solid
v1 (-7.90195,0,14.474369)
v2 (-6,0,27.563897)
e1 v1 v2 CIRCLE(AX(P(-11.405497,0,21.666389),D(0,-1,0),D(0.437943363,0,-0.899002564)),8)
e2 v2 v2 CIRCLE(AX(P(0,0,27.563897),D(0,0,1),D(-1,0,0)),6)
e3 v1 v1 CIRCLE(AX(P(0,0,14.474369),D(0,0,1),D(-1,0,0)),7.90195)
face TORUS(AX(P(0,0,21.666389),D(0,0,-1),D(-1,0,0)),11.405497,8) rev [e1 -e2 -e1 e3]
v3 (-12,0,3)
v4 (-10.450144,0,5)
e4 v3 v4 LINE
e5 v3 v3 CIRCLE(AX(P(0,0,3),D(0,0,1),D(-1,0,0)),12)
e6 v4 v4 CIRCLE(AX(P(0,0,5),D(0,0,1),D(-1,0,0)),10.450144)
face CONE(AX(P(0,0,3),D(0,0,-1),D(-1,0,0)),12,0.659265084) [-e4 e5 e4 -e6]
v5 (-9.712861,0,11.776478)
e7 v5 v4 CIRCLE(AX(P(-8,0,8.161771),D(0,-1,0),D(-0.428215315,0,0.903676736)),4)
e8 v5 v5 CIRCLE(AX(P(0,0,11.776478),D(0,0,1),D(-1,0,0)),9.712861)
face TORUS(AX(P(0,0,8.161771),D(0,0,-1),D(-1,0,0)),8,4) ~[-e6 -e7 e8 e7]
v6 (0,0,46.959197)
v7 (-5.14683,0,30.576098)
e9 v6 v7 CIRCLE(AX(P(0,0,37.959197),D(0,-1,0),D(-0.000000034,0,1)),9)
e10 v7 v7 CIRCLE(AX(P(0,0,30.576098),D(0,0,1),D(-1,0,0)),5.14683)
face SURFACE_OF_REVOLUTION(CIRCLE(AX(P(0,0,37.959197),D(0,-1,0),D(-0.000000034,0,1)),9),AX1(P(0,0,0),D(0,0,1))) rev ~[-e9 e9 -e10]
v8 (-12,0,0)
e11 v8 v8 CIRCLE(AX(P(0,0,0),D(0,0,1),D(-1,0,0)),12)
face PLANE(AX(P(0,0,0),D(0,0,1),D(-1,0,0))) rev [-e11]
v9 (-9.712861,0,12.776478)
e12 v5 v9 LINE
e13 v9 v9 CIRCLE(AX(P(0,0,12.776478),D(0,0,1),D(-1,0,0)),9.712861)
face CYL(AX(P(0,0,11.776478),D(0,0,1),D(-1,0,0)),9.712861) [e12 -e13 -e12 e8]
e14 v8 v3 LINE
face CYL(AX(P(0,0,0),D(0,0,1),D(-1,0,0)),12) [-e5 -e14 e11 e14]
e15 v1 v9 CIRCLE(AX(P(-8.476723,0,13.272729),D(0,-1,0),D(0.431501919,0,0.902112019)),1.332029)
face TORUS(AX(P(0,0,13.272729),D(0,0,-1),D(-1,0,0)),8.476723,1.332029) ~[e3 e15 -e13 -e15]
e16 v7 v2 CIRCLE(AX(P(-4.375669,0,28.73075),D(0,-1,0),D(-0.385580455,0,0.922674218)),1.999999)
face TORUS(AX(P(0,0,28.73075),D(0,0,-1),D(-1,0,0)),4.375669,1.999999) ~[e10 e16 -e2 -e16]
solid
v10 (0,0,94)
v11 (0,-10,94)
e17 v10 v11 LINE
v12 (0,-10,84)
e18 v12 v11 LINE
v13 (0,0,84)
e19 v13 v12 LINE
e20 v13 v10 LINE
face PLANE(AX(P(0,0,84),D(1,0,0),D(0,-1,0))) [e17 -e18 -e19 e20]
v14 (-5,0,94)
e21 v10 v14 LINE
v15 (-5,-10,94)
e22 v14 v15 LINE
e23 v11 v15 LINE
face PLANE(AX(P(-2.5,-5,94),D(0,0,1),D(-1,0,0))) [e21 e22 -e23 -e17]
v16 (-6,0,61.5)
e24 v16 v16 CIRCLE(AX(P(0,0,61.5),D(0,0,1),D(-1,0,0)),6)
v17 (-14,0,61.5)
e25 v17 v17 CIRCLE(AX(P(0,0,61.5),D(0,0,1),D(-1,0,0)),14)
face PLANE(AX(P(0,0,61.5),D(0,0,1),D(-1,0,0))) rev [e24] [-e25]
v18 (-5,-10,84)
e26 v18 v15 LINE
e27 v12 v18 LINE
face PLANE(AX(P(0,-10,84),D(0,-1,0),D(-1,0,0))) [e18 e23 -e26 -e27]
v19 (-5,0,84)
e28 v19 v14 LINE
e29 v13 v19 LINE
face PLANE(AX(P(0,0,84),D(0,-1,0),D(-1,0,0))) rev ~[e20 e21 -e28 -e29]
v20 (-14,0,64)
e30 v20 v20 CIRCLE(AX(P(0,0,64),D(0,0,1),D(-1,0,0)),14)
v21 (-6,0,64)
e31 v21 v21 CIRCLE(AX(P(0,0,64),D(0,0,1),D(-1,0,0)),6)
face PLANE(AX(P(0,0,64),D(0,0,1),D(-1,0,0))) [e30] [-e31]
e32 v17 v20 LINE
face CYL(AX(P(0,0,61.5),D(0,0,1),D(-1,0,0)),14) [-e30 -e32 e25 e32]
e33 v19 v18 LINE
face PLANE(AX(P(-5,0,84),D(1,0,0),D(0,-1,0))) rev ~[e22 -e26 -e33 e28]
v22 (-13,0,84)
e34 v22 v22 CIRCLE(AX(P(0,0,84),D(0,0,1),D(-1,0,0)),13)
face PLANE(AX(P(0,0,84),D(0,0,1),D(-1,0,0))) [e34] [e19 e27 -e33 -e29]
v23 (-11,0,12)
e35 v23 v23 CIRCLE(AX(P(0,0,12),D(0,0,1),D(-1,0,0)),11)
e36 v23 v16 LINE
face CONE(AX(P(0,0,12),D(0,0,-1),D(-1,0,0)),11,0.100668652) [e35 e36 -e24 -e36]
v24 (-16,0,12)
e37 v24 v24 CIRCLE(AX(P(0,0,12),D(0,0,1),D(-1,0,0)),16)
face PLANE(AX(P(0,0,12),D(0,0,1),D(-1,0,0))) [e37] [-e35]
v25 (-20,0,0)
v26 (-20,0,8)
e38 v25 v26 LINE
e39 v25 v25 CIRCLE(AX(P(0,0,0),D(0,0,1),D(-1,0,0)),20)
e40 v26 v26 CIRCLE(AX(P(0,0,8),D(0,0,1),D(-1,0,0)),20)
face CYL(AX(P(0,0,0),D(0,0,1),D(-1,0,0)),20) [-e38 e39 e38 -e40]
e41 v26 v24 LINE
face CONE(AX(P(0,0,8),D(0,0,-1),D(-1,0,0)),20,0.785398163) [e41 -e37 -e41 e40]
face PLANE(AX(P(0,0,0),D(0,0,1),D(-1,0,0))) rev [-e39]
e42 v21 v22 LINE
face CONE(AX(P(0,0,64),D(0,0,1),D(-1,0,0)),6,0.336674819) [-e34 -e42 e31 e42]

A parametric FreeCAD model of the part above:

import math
import FreeCAD as App
import Part
import Sketcher
from FreeCAD import Vector
Q = App.Units.Quantity

doc = App.newDocument("Part")
body = doc.addObject("PartDesign::Body", "Body")

sketch1 = doc.addObject("Sketcher::SketchObject", "Sketch")
body.addObject(sketch1)
sketch1.AttachmentSupport = (doc.XZ_Plane, [""])
sketch1.MapMode = "FlatFace"
sketch1.addGeometry(Part.LineSegment(Vector(-12, 0, 0), Vector(0, 0, 0)), False)
sketch1.addGeometry(Part.LineSegment(Vector(0, 0, 0), Vector(0, 46.959197, 0)), False)
sketch1.addGeometry(Part.ArcOfCircle(Part.Circle(Vector(0, 37.959197, 0), Vector(0, 0, 1), 9), math.radians(90.000002), math.radians(235.11927)), False)
sketch1.addGeometry(Part.ArcOfCircle(Part.Circle(Vector(-4.375669, 28.73075, 0), Vector(0, 0, 1), 1.999999), math.radians(112.67978), math.radians(215.691937)), False)
sketch1.addGeometry(Part.ArcOfCircle(Part.Circle(Vector(-11.405497, 21.666389, 0), Vector(0, 0, 1), 8), math.radians(-64.027267), math.radians(47.492468)), False)
sketch1.addGeometry(Part.ArcOfCircle(Part.Circle(Vector(-8.476723, 13.272729, 0), Vector(0, 0, 1), 1.332029), math.radians(64.437087), math.radians(201.873146)), False)
sketch1.addGeometry(Part.LineSegment(Vector(-9.712861, 12.776478, 0), Vector(-9.712861, 11.776478, 0)), False)
sketch1.addGeometry(Part.ArcOfCircle(Part.Circle(Vector(-8, 8.161771, 0), Vector(0, 0, 1), 4), math.radians(115.354353), math.radians(232.226897)), False)
sketch1.addGeometry(Part.LineSegment(Vector(-10.450144, 5, 0), Vector(-12, 3, 0)), False)
sketch1.addGeometry(Part.LineSegment(Vector(-12, 3, 0), Vector(-12, 0, 0)), False)
sketch1.addConstraint(Sketcher.Constraint("Coincident", 0, 2, 1, 1))
sketch1.addConstraint(Sketcher.Constraint("Coincident", 1, 2, 2, 1))
sketch1.addConstraint(Sketcher.Constraint("Coincident", 2, 2, 3, 1))
sketch1.addConstraint(Sketcher.Constraint("Coincident", 3, 2, 4, 2))
sketch1.addConstraint(Sketcher.Constraint("Coincident", 4, 1, 5, 1))
sketch1.addConstraint(Sketcher.Constraint("Coincident", 5, 2, 6, 1))
sketch1.addConstraint(Sketcher.Constraint("Coincident", 6, 2, 7, 1))
sketch1.addConstraint(Sketcher.Constraint("Coincident", 7, 2, 8, 1))
sketch1.addConstraint(Sketcher.Constraint("Coincident", 8, 2, 9, 1))
sketch1.addConstraint(Sketcher.Constraint("Coincident", 9, 2, 0, 1))
sketch1.addConstraint(Sketcher.Constraint("Horizontal", 0))
sketch1.addConstraint(Sketcher.Constraint("Vertical", 1))
sketch1.addConstraint(Sketcher.Constraint("Vertical", 6))
sketch1.addConstraint(Sketcher.Constraint("Vertical", 9))
sketch1.addConstraint(Sketcher.Constraint("Coincident", 0, 2, -1, 1))
sketch1.addConstraint(Sketcher.Constraint("PointOnObject", 2, 3, -2))
sketch1.addConstraint(Sketcher.Constraint("Radius", 2, Q("9 mm")))
sketch1.addConstraint(Sketcher.Constraint("Radius", 3, Q("1.999999 mm")))
sketch1.addConstraint(Sketcher.Constraint("Radius", 4, Q("8 mm")))
sketch1.addConstraint(Sketcher.Constraint("Radius", 7, Q("4 mm")))
sketch1.addConstraint(Sketcher.Constraint("DistanceX", 0, 1, 0, 2, Q("12 mm")))
sketch1.addConstraint(Sketcher.Constraint("DistanceY", 6, 2, 6, 1, Q("1 mm")))
sketch1.addConstraint(Sketcher.Constraint("DistanceY", 9, 2, 9, 1, Q("3 mm")))
sketch1.addConstraint(Sketcher.Constraint("DistanceX", 7, 3, -1, 1, Q("8 mm")))
sketch1.addConstraint(Sketcher.Constraint("DistanceX", 3, 2, -1, 1, Q("6 mm")))
sketch1.addConstraint(Sketcher.Constraint("DistanceY", -1, 1, 7, 2, Q("5 mm")))
sketch1.addConstraint(Sketcher.Constraint("Radius", 5, Q("1.332029 mm")))
sketch1.addConstraint(Sketcher.Constraint("DistanceY", 2, 2, 2, 3, Q("7.383099 mm")))
sketch1.addConstraint(Sketcher.Constraint("DistanceY", 3, 2, 2, 2, Q("3.012201 mm")))
sketch1.addConstraint(Sketcher.Constraint("DistanceY", 7, 3, 4, 1, Q("6.312598 mm")))
sketch1.addConstraint(Sketcher.Constraint("DistanceY", 1, 1, 1, 2, Q("46.959197 mm")))
sketch1.addConstraint(Sketcher.Constraint("DistanceY", -1, 1, 4, 3, Q("21.666389 mm")))
sketch1.addConstraint(Sketcher.Constraint("DistanceY", -1, 1, 5, 3, Q("13.272729 mm")))
sketch1.addConstraint(Sketcher.Constraint("DistanceY", -1, 1, 7, 3, Q("8.161771 mm")))
revolution = doc.addObject("PartDesign::Revolution", "Revolution")
body.addObject(revolution)
revolution.Profile = sketch1
revolution.ReferenceAxis = (sketch1, ["V_Axis"])
revolution.Angle = 360
body2 = doc.addObject("PartDesign::Body", "Body001")

sketch2 = doc.addObject("Sketcher::SketchObject", "Sketch001")
body2.addObject(sketch2)
sketch2.AttachmentSupport = (doc.getObject("XZ_Plane001"), [""])
sketch2.MapMode = "FlatFace"
sketch2.addGeometry(Part.LineSegment(Vector(-20, 0, 0), Vector(0, 0, 0)), False)
sketch2.addGeometry(Part.LineSegment(Vector(0, 0, 0), Vector(0, 84, 0)), False)
sketch2.addGeometry(Part.LineSegment(Vector(0, 84, 0), Vector(-13, 84, 0)), False)
sketch2.addGeometry(Part.LineSegment(Vector(-13, 84, 0), Vector(-6, 64, 0)), False)
sketch2.addGeometry(Part.LineSegment(Vector(-6, 64, 0), Vector(-14, 64, 0)), False)
sketch2.addGeometry(Part.LineSegment(Vector(-14, 64, 0), Vector(-14, 61.5, 0)), False)
sketch2.addGeometry(Part.LineSegment(Vector(-14, 61.5, 0), Vector(-6, 61.5, 0)), False)
sketch2.addGeometry(Part.LineSegment(Vector(-6, 61.5, 0), Vector(-11, 12, 0)), False)
sketch2.addGeometry(Part.LineSegment(Vector(-11, 12, 0), Vector(-16, 12, 0)), False)
sketch2.addGeometry(Part.LineSegment(Vector(-16, 12, 0), Vector(-20, 8, 0)), False)
sketch2.addGeometry(Part.LineSegment(Vector(-20, 8, 0), Vector(-20, 0, 0)), False)
sketch2.addConstraint(Sketcher.Constraint("Coincident", 0, 2, 1, 1))
sketch2.addConstraint(Sketcher.Constraint("Coincident", 1, 2, 2, 1))
sketch2.addConstraint(Sketcher.Constraint("Coincident", 2, 2, 3, 1))
sketch2.addConstraint(Sketcher.Constraint("Coincident", 3, 2, 4, 1))
sketch2.addConstraint(Sketcher.Constraint("Coincident", 4, 2, 5, 1))
sketch2.addConstraint(Sketcher.Constraint("Coincident", 5, 2, 6, 1))
sketch2.addConstraint(Sketcher.Constraint("Coincident", 6, 2, 7, 1))
sketch2.addConstraint(Sketcher.Constraint("Coincident", 7, 2, 8, 1))
sketch2.addConstraint(Sketcher.Constraint("Coincident", 8, 2, 9, 1))
sketch2.addConstraint(Sketcher.Constraint("Coincident", 9, 2, 10, 1))
sketch2.addConstraint(Sketcher.Constraint("Coincident", 10, 2, 0, 1))
sketch2.addConstraint(Sketcher.Constraint("Horizontal", 0))
sketch2.addConstraint(Sketcher.Constraint("Vertical", 1))
sketch2.addConstraint(Sketcher.Constraint("Horizontal", 2))
sketch2.addConstraint(Sketcher.Constraint("Horizontal", 4))
sketch2.addConstraint(Sketcher.Constraint("Vertical", 5))
sketch2.addConstraint(Sketcher.Constraint("Horizontal", 6))
sketch2.addConstraint(Sketcher.Constraint("Horizontal", 8))
sketch2.addConstraint(Sketcher.Constraint("Vertical", 10))
sketch2.addConstraint(Sketcher.Constraint("Coincident", 0, 2, -1, 1))
sketch2.addConstraint(Sketcher.Constraint("Vertical", 3, 2, 6, 2))
sketch2.addConstraint(Sketcher.Constraint("Equal", 6, 10))
sketch2.addConstraint(Sketcher.Constraint("DistanceX", 0, 1, 0, 2, Q("20 mm")))
sketch2.addConstraint(Sketcher.Constraint("DistanceX", 2, 2, 2, 1, Q("13 mm")))
sketch2.addConstraint(Sketcher.Constraint("DistanceX", 4, 2, 4, 1, Q("8 mm")))
sketch2.addConstraint(Sketcher.Constraint("DistanceX", 8, 2, 8, 1, Q("5 mm")))
sketch2.addConstraint(Sketcher.Constraint("DistanceY", 1, 1, 1, 2, Q("84 mm")))
sketch2.addConstraint(Sketcher.Constraint("Angle", 9, Q("-135 deg")))
sketch2.addConstraint(Sketcher.Constraint("DistanceY", 5, 2, 5, 1, Q("2.5 mm")))
sketch2.addConstraint(Sketcher.Constraint("DistanceX", 3, 2, -1, 1, Q("6 mm")))
sketch2.addConstraint(Sketcher.Constraint("DistanceY", -1, 1, 3, 2, Q("64 mm")))
sketch2.addConstraint(Sketcher.Constraint("DistanceX", 7, 2, -1, 1, Q("11 mm")))
revolution2 = doc.addObject("PartDesign::Revolution", "Revolution001")
body2.addObject(revolution2)
revolution2.Profile = sketch2
revolution2.ReferenceAxis = (sketch2, ["V_Axis"])
revolution2.Angle = 360

sketch3 = doc.addObject("Sketcher::SketchObject", "Sketch002")
body2.addObject(sketch3)
sketch3.AttachmentSupport = (doc.getObject("XY_Plane001"), [""])
sketch3.MapMode = "FlatFace"
sketch3.AttachmentOffset = App.Placement(Vector(0, 0, 84), App.Rotation())
sketch3.addGeometry(Part.LineSegment(Vector(0, -10, 0), Vector(0, 0, 0)), False)
sketch3.addGeometry(Part.LineSegment(Vector(0, 0, 0), Vector(-5, 0, 0)), False)
sketch3.addGeometry(Part.LineSegment(Vector(-5, 0, 0), Vector(-5, -10, 0)), False)
sketch3.addGeometry(Part.LineSegment(Vector(-5, -10, 0), Vector(0, -10, 0)), False)
sketch3.addConstraint(Sketcher.Constraint("Coincident", 0, 2, 1, 1))
sketch3.addConstraint(Sketcher.Constraint("Coincident", 1, 2, 2, 1))
sketch3.addConstraint(Sketcher.Constraint("Coincident", 2, 2, 3, 1))
sketch3.addConstraint(Sketcher.Constraint("Coincident", 3, 2, 0, 1))
sketch3.addConstraint(Sketcher.Constraint("Vertical", 0))
sketch3.addConstraint(Sketcher.Constraint("Horizontal", 1))
sketch3.addConstraint(Sketcher.Constraint("Vertical", 2))
sketch3.addConstraint(Sketcher.Constraint("Horizontal", 3))
sketch3.addConstraint(Sketcher.Constraint("Coincident", 0, 2, -1, 1))
sketch3.addConstraint(Sketcher.Constraint("DistanceX", 1, 2, 1, 1, Q("5 mm")))
sketch3.addConstraint(Sketcher.Constraint("DistanceY", 0, 1, 0, 2, Q("10 mm")))
pad1 = doc.addObject("PartDesign::Pad", "Pad")
body2.addObject(pad1)
pad1.Profile = sketch3
pad1.Length = 10

doc.recompute()
